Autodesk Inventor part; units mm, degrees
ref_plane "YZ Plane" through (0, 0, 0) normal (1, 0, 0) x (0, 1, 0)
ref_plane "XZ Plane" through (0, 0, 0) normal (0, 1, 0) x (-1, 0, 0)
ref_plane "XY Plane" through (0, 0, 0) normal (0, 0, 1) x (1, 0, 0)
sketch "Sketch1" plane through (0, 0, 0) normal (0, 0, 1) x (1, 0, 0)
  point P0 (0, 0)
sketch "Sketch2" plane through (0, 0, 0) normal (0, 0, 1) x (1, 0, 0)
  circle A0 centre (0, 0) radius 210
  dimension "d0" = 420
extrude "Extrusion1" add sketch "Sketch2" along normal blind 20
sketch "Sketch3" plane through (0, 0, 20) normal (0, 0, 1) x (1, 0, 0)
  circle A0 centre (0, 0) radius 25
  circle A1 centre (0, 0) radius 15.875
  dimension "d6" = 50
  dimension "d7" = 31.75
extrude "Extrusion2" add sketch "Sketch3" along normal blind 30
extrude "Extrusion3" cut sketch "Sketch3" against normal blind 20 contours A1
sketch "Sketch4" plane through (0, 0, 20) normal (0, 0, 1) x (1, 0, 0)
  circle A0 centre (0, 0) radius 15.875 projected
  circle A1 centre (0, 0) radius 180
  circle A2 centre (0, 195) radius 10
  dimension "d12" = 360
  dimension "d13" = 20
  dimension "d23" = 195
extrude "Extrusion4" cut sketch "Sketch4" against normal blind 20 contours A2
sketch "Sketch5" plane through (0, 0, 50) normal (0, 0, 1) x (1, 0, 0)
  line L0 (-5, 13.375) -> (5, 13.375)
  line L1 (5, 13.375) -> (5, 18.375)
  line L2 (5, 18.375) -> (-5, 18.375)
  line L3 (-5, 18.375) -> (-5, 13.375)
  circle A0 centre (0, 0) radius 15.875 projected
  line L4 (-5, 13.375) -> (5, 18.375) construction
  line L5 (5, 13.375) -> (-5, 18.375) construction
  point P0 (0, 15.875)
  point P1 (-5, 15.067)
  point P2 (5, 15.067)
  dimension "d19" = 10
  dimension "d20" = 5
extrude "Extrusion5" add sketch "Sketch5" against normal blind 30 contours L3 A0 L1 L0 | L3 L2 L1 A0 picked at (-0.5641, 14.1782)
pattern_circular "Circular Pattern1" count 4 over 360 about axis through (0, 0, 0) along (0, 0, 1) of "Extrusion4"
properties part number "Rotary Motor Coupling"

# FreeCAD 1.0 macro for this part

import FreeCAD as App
import Part
import Sketcher
from FreeCAD import Vector
Q = App.Units.Quantity


def add_polygon(sketch, points):
    """Adds a closed chain of lines whose ends are joined by coincident constraints."""
    first, n = sketch.GeometryCount, len(points)
    for a, b in zip(points, points[1:] + points[:1]):
        sketch.addGeometry(Part.LineSegment(App.Vector(*a, 0), App.Vector(*b, 0)), False)
    for i in range(n):
        sketch.addConstraint(Sketcher.Constraint("Coincident", first + i, 2, first + (i + 1) % n, 1))

doc = App.newDocument("Part")
body = doc.addObject("PartDesign::Body", "Body")

sketch1 = body.newObject("Sketcher::SketchObject", "Sketch")
sketch1.AttachmentSupport = (doc.getObject("XY_Plane"), [""])
sketch1.MapMode = "FlatFace"
sketch1.addGeometry(Part.Circle(Vector(0, 0, 0), Vector(0, 0, 1), 210), False)
sketch1.addConstraint(Sketcher.Constraint("Coincident", 0, 3, -1, 1))
sketch1.addConstraint(Sketcher.Constraint("Diameter", 0, Q("420 mm")))
pad1 = body.newObject("PartDesign::Pad", "Pad")
pad1.Profile = sketch1
pad1.Length = 20

sketch2 = body.newObject("Sketcher::SketchObject", "Sketch001")
sketch2.AttachmentSupport = (doc.getObject("XY_Plane"), [""])
sketch2.MapMode = "FlatFace"
sketch2.AttachmentOffset = App.Placement(Vector(0, 0, 20), App.Rotation())
sketch2.addGeometry(Part.Circle(Vector(0, 0, 0), Vector(0, 0, 1), 25), False)
sketch2.addGeometry(Part.Circle(Vector(0, 0, 0), Vector(0, 0, 1), 16), False)
sketch2.addConstraint(Sketcher.Constraint("Coincident", 0, 3, -1, 1))
sketch2.addConstraint(Sketcher.Constraint("Coincident", 1, 3, -1, 1))
sketch2.addConstraint(Sketcher.Constraint("Diameter", 0, Q("50 mm")))
sketch2.addConstraint(Sketcher.Constraint("Diameter", 1, Q("31.75 mm")))
pad2 = body.newObject("PartDesign::Pad", "Pad001")
pad2.Profile = sketch2
pad2.Length = 30

sketch3 = body.newObject("Sketcher::SketchObject", "Sketch002")
sketch3.AttachmentSupport = (doc.getObject("XY_Plane"), [""])
sketch3.MapMode = "FlatFace"
sketch3.AttachmentOffset = App.Placement(Vector(0, 0, 20), App.Rotation())
sketch3.addGeometry(Part.Circle(Vector(0, 0, 0), Vector(0, 0, 1), 16), False)
sketch3.addConstraint(Sketcher.Constraint("Coincident", 0, 3, -1, 1))
sketch3.addConstraint(Sketcher.Constraint("Diameter", 0, Q("31.75 mm")))
pocket1 = body.newObject("PartDesign::Pocket", "Pocket")
pocket1.Profile = sketch3
pocket1.Length = 20

sketch4 = body.newObject("Sketcher::SketchObject", "Sketch003")
sketch4.AttachmentSupport = (doc.getObject("XY_Plane"), [""])
sketch4.MapMode = "FlatFace"
sketch4.AttachmentOffset = App.Placement(Vector(0, 0, 20), App.Rotation())
sketch4.addGeometry(Part.Circle(Vector(0, 195, 0), Vector(0, 0, 1), 10), False)
sketch4.addConstraint(Sketcher.Constraint("PointOnObject", 0, 3, -2))
sketch4.addConstraint(Sketcher.Constraint("Diameter", 0, Q("20 mm")))
sketch4.addConstraint(Sketcher.Constraint("DistanceY", -1, 1, 0, 3, Q("195 mm")))
pocket2 = body.newObject("PartDesign::Pocket", "Pocket001")
pocket2.Profile = sketch4
pocket2.Length = 20

sketch5 = body.newObject("Sketcher::SketchObject", "Sketch004")
sketch5.AttachmentSupport = (doc.getObject("XY_Plane"), [""])
sketch5.MapMode = "FlatFace"
sketch5.AttachmentOffset = App.Placement(Vector(0, 0, 50), App.Rotation())
add_polygon(sketch5, [(-5, 13), (5, 13), (5, 18), (-5, 18)])
sketch5.addConstraint(Sketcher.Constraint("Horizontal", 0))
sketch5.addConstraint(Sketcher.Constraint("Vertical", 1))
sketch5.addConstraint(Sketcher.Constraint("Horizontal", 2))
sketch5.addConstraint(Sketcher.Constraint("Vertical", 3))
sketch5.addConstraint(Sketcher.Constraint("DistanceX", 0, 1, 0, 2, Q("10 mm")))
sketch5.addConstraint(Sketcher.Constraint("DistanceY", 1, 1, 1, 2, Q("5 mm")))
sketch5.addConstraint(Sketcher.Constraint("DistanceX", -1, 1, 0, 2, Q("5 mm")))
sketch5.addConstraint(Sketcher.Constraint("DistanceY", -1, 1, 0, 2, Q("13.375 mm")))
pad3 = body.newObject("PartDesign::Pad", "Pad002")
pad3.Profile = sketch5
pad3.Length = 30
pad3.Reversed = True
doc.recompute()

polarpattern = body.newObject("PartDesign::PolarPattern", "PolarPattern")
polarpattern.Originals = [pocket2]
polarpattern.Axis = (doc.getObject("Z_Axis"), [""])
polarpattern.Angle = 360
polarpattern.Occurrences = 4
body.Tip = polarpattern

doc.recompute()
